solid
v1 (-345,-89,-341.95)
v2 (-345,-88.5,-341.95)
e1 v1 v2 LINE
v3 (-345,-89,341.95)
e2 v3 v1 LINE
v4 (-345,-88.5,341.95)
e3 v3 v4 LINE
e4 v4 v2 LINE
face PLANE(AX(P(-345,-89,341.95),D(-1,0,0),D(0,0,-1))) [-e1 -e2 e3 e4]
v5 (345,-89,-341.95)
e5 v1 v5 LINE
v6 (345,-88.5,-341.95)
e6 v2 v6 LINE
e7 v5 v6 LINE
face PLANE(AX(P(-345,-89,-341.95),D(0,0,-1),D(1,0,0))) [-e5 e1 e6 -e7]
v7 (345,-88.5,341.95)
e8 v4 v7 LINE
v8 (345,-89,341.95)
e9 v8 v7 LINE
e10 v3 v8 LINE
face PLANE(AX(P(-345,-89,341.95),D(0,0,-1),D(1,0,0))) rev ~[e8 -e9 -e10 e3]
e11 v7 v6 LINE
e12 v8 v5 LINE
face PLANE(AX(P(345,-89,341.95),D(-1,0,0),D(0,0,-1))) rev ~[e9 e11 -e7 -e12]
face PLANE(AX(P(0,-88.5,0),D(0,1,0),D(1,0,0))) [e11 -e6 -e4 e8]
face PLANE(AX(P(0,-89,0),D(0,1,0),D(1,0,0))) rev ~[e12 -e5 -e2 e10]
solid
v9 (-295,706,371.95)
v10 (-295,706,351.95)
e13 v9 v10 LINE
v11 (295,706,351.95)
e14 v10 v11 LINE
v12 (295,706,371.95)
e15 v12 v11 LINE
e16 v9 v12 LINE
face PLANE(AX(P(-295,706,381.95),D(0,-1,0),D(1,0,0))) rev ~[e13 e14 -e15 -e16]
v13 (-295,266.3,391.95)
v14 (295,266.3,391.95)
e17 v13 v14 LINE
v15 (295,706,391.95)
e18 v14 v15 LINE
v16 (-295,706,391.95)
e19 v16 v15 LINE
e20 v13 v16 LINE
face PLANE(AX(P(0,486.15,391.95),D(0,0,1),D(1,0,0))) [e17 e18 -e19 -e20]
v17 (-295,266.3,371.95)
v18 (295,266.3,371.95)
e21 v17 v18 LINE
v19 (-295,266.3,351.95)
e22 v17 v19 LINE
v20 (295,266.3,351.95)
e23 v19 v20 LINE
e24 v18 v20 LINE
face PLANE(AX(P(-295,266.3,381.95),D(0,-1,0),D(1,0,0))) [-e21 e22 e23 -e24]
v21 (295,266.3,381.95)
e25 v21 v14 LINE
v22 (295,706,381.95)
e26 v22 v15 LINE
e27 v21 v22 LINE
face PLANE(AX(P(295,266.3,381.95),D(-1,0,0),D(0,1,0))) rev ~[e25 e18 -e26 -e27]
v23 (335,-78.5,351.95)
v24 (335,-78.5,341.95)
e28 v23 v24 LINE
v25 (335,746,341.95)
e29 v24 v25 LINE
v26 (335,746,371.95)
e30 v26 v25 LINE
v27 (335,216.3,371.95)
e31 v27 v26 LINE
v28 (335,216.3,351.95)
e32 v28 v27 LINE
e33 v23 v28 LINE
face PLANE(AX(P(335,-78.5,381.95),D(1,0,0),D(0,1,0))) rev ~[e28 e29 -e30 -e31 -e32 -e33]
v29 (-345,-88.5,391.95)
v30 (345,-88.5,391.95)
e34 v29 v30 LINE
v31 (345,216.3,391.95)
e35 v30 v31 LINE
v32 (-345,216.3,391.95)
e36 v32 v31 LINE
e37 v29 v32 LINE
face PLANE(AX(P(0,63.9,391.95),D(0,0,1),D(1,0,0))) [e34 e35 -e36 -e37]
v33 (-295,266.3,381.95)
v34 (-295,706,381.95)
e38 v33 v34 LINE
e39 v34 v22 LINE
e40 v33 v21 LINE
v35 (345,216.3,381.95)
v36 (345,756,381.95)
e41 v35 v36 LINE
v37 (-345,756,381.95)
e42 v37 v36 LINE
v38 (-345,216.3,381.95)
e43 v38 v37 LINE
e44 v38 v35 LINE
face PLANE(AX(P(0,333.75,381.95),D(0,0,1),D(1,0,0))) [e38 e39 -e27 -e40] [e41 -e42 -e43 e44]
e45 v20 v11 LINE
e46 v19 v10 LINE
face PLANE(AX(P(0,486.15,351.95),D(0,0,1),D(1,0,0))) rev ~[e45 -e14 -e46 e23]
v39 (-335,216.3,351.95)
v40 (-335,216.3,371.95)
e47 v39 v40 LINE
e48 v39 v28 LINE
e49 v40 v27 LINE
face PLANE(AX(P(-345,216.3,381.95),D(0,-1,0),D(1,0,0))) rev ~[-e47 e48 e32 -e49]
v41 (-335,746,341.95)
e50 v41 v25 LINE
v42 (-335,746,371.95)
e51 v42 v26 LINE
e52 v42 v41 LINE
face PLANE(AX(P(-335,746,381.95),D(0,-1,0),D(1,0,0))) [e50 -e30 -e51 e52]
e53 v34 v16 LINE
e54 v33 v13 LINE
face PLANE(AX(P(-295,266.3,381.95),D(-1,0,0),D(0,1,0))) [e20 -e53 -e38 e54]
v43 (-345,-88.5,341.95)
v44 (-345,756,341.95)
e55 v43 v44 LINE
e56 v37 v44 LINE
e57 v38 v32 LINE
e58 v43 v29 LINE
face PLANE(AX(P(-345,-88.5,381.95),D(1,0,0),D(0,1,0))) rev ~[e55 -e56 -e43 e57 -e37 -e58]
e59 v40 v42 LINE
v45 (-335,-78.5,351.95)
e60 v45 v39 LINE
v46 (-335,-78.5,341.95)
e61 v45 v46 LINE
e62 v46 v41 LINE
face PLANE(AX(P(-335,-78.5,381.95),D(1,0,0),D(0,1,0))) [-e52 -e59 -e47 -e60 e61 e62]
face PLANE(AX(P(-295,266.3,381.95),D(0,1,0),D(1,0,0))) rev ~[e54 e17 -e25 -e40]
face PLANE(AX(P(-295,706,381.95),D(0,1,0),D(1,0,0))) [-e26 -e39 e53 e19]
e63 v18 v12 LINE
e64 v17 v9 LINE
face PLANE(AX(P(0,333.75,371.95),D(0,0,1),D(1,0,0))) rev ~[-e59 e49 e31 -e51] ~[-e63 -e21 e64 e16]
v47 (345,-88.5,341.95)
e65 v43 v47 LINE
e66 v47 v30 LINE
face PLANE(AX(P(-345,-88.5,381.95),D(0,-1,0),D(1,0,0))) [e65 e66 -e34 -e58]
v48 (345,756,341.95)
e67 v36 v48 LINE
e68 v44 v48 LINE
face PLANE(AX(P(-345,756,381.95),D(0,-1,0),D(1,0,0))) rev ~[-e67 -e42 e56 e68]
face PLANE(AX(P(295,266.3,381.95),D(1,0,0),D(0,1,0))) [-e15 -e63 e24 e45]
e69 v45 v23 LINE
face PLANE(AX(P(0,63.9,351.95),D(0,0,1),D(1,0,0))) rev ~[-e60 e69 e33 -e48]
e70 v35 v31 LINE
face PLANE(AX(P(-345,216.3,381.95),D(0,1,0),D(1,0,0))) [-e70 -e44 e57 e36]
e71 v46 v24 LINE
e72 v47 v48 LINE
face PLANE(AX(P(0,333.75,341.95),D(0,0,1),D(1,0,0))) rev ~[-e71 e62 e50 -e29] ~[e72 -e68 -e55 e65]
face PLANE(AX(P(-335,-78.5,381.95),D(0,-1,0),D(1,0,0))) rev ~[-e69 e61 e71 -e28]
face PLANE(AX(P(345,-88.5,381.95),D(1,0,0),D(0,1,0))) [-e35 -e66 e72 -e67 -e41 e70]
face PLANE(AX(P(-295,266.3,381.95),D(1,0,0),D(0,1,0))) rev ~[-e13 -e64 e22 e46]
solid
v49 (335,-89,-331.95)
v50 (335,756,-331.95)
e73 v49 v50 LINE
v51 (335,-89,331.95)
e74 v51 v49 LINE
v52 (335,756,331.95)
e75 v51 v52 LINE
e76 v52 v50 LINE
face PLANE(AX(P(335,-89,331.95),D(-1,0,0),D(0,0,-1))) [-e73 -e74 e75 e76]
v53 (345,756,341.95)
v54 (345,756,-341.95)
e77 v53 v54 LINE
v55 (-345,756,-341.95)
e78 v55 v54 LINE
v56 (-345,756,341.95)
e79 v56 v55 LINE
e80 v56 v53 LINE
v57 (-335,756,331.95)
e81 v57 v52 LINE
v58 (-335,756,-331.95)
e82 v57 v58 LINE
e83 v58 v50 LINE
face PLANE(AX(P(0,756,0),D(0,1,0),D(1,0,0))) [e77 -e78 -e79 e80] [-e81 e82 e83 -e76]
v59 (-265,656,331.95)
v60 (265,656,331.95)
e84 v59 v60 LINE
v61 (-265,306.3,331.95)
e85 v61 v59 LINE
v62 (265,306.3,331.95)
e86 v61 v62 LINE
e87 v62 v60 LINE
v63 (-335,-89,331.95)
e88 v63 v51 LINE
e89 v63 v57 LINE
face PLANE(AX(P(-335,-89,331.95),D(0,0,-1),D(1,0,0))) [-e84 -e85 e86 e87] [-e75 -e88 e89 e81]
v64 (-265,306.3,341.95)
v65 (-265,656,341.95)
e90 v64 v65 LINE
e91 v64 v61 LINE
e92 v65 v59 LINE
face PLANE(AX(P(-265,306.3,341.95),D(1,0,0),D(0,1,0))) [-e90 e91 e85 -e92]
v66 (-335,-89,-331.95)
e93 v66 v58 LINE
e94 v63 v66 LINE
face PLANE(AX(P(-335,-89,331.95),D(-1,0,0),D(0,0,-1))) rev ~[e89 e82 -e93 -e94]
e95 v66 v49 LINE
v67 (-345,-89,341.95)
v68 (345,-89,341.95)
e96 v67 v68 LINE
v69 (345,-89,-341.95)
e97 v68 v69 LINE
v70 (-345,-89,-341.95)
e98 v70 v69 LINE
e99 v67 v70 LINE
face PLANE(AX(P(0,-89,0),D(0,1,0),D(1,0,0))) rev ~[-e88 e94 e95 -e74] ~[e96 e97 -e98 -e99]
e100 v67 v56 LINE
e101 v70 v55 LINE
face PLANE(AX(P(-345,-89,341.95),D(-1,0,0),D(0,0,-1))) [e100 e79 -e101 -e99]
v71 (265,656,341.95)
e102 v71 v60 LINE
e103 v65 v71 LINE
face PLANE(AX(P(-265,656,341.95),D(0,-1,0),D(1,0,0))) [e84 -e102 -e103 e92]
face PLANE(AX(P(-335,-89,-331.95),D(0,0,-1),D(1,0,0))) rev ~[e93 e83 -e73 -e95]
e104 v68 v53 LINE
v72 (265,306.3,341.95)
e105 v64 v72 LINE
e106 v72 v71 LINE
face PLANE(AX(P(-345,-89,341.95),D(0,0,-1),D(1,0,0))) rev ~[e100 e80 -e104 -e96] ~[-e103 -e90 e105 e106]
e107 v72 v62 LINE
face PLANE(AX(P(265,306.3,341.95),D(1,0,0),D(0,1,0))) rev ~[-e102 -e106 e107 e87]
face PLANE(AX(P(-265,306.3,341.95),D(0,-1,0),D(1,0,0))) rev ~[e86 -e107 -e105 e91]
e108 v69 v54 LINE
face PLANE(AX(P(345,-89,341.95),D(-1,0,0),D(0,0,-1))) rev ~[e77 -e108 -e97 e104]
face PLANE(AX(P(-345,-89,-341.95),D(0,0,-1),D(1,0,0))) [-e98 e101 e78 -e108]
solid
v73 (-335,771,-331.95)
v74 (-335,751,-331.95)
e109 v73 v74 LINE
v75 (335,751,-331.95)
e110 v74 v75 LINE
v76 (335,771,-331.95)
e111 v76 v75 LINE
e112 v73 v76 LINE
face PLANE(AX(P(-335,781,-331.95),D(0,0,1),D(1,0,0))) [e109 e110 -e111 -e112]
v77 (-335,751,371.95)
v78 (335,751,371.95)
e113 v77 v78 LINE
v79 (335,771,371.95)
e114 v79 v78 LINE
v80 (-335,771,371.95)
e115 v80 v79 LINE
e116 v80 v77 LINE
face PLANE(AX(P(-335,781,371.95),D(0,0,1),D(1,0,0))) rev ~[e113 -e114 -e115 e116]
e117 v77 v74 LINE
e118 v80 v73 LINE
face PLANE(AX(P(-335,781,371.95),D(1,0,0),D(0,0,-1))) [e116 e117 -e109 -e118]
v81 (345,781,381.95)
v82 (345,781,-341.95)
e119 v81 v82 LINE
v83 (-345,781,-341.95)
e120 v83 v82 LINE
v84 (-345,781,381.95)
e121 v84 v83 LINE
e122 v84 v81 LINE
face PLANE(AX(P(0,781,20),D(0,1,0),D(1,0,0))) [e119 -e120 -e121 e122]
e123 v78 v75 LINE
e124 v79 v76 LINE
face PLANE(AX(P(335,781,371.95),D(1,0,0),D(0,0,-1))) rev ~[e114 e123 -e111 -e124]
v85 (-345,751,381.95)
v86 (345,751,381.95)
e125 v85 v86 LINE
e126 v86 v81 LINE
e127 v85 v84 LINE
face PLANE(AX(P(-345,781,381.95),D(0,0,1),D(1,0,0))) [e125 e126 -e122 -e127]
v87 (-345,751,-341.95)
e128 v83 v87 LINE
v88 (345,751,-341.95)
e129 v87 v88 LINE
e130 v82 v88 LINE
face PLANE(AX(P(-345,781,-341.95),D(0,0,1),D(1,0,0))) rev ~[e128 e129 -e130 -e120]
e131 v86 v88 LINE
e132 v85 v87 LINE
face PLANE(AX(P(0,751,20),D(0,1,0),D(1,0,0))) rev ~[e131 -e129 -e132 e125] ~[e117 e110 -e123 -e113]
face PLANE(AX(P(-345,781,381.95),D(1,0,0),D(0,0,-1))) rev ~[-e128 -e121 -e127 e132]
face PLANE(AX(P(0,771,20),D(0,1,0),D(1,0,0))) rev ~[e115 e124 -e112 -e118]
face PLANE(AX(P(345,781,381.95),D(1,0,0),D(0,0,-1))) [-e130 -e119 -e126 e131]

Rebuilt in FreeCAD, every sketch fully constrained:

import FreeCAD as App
import Part
import Sketcher

doc = App.newDocument("Part")
body = doc.addObject("PartDesign::Body", "Body")

sketch1 = body.newObject("Sketcher::SketchObject", "Sketch")
sketch1.AttachmentSupport = (doc.getObject("XZ_Plane"), [""])
sketch1.MapMode = "FlatFace"
sketch1.AttachmentOffset = App.Placement(App.Vector(0, 0, 89), App.Rotation())
sketch1.addGeometry([
    Part.LineSegment(App.Vector(-345, -341.95, 0), App.Vector(-345, 341.95, 0)),
    Part.LineSegment(App.Vector(-345, 341.95, 0), App.Vector(345, 341.95, 0)),
    Part.LineSegment(App.Vector(345, 341.95, 0), App.Vector(345, -341.95, 0)),
    Part.LineSegment(App.Vector(345, -341.95, 0), App.Vector(-345, -341.95, 0)),
], False)
sketch1.addConstraint([
    Sketcher.Constraint("Coincident", 0, 2, 1, 1),
    Sketcher.Constraint("Coincident", 1, 2, 2, 1),
    Sketcher.Constraint("Coincident", 2, 2, 3, 1),
    Sketcher.Constraint("Coincident", 3, 2, 0, 1),
    Sketcher.Constraint("Vertical", 0),
    Sketcher.Constraint("Horizontal", 1),
    Sketcher.Constraint("Vertical", 2),
    Sketcher.Constraint("Horizontal", 3),
    Sketcher.Constraint("Symmetric", 0, 2, 2, 2, -1, 1),
    Sketcher.Constraint("DistanceX", 1, 1, 1, 2, 690.0),
    Sketcher.Constraint("DistanceY", 0, 1, 0, 2, 683.9),
])
pad1 = body.newObject("PartDesign::Pad", "Pad")
pad1.Profile = sketch1
pad1.Length = 0.5
pad1.Reversed = True
body2 = doc.addObject("PartDesign::Body", "Body001")

sketch2 = body2.newObject("Sketcher::SketchObject", "Sketch001")
sketch2.AttachmentSupport = (doc.getObject("XZ_Plane001"), [""])
sketch2.MapMode = "FlatFace"
sketch2.AttachmentOffset = App.Placement(App.Vector(0, 0, 89), App.Rotation())
sketch2.addGeometry([
    Part.LineSegment(App.Vector(-345, -341.95, 0), App.Vector(-345, 341.95, 0)),
    Part.LineSegment(App.Vector(-345, 341.95, 0), App.Vector(345, 341.95, 0)),
    Part.LineSegment(App.Vector(345, 341.95, 0), App.Vector(345, -341.95, 0)),
    Part.LineSegment(App.Vector(345, -341.95, 0), App.Vector(-345, -341.95, 0)),
    Part.LineSegment(App.Vector(335, 331.95, 0), App.Vector(-335, 331.95, 0)),
    Part.LineSegment(App.Vector(-335, 331.95, 0), App.Vector(-335, -331.95, 0)),
    Part.LineSegment(App.Vector(-335, -331.95, 0), App.Vector(335, -331.95, 0)),
    Part.LineSegment(App.Vector(335, -331.95, 0), App.Vector(335, 331.95, 0)),
], False)
sketch2.addConstraint([
    Sketcher.Constraint("Coincident", 0, 2, 1, 1),
    Sketcher.Constraint("Coincident", 1, 2, 2, 1),
    Sketcher.Constraint("Coincident", 2, 2, 3, 1),
    Sketcher.Constraint("Coincident", 3, 2, 0, 1),
    Sketcher.Constraint("Coincident", 4, 2, 5, 1),
    Sketcher.Constraint("Coincident", 5, 2, 6, 1),
    Sketcher.Constraint("Coincident", 6, 2, 7, 1),
    Sketcher.Constraint("Coincident", 7, 2, 4, 1),
    Sketcher.Constraint("Vertical", 0),
    Sketcher.Constraint("Horizontal", 1),
    Sketcher.Constraint("Vertical", 2),
    Sketcher.Constraint("Horizontal", 3),
    Sketcher.Constraint("Horizontal", 4),
    Sketcher.Constraint("Vertical", 5),
    Sketcher.Constraint("Horizontal", 6),
    Sketcher.Constraint("Vertical", 7),
    Sketcher.Constraint("Symmetric", 0, 2, 2, 2, -1, 1),
    Sketcher.Constraint("Symmetric", 4, 2, 6, 2, -1, 1),
    Sketcher.Constraint("DistanceX", 1, 1, 1, 2, 690.0),
    Sketcher.Constraint("DistanceX", 4, 2, 4, 1, 670.0),
    Sketcher.Constraint("DistanceY", 0, 1, 0, 2, 683.9),
    Sketcher.Constraint("DistanceY", 5, 2, 5, 1, 663.9),
])
pad2 = body2.newObject("PartDesign::Pad", "Pad001")
pad2.Profile = sketch2
pad2.Length = 845
pad2.Reversed = True

sketch3 = body2.newObject("Sketcher::SketchObject", "Sketch002")
sketch3.AttachmentSupport = (doc.getObject("XY_Plane001"), [""])
sketch3.MapMode = "FlatFace"
sketch3.AttachmentOffset = App.Placement(App.Vector(0, 0, 341.95), App.Rotation())
sketch3.addGeometry([
    Part.LineSegment(App.Vector(-265, 656, 0), App.Vector(-265, 306.3, 0)),
    Part.LineSegment(App.Vector(-265, 306.3, 0), App.Vector(265, 306.3, 0)),
    Part.LineSegment(App.Vector(265, 306.3, 0), App.Vector(265, 656, 0)),
    Part.LineSegment(App.Vector(265, 656, 0), App.Vector(-265, 656, 0)),
], False)
sketch3.addConstraint([
    Sketcher.Constraint("Coincident", 0, 2, 1, 1),
    Sketcher.Constraint("Coincident", 1, 2, 2, 1),
    Sketcher.Constraint("Coincident", 2, 2, 3, 1),
    Sketcher.Constraint("Coincident", 3, 2, 0, 1),
    Sketcher.Constraint("Vertical", 0),
    Sketcher.Constraint("Horizontal", 1),
    Sketcher.Constraint("Vertical", 2),
    Sketcher.Constraint("Horizontal", 3),
    Sketcher.Constraint("DistanceX", 1, 1, 1, 2, 530.0),
    Sketcher.Constraint("DistanceY", 0, 2, 0, 1, 349.7),
    Sketcher.Constraint("DistanceX", 0, 2, -1, 1, 265.0),
    Sketcher.Constraint("DistanceY", -1, 1, 2, 2, 656.0),
])
pocket1 = body2.newObject("PartDesign::Pocket", "Pocket")
pocket1.Profile = sketch3
pocket1.Length = 10
body3 = doc.addObject("PartDesign::Body", "Body002")

sketch4 = body3.newObject("Sketcher::SketchObject", "Sketch003")
sketch4.AttachmentSupport = (doc.getObject("XZ_Plane002"), [""])
sketch4.MapMode = "FlatFace"
sketch4.AttachmentOffset = App.Placement(App.Vector(0, 0, -781), App.Rotation())
sketch4.addGeometry([
    Part.LineSegment(App.Vector(-345, -341.95, 0), App.Vector(-345, 381.95, 0)),
    Part.LineSegment(App.Vector(-345, 381.95, 0), App.Vector(345, 381.95, 0)),
    Part.LineSegment(App.Vector(345, 381.95, 0), App.Vector(345, -341.95, 0)),
    Part.LineSegment(App.Vector(345, -341.95, 0), App.Vector(-345, -341.95, 0)),
], False)
sketch4.addConstraint([
    Sketcher.Constraint("Coincident", 0, 2, 1, 1),
    Sketcher.Constraint("Coincident", 1, 2, 2, 1),
    Sketcher.Constraint("Coincident", 2, 2, 3, 1),
    Sketcher.Constraint("Coincident", 3, 2, 0, 1),
    Sketcher.Constraint("Vertical", 0),
    Sketcher.Constraint("Horizontal", 1),
    Sketcher.Constraint("Vertical", 2),
    Sketcher.Constraint("Horizontal", 3),
    Sketcher.Constraint("DistanceX", 1, 1, 1, 2, 690.0),
    Sketcher.Constraint("DistanceY", 0, 1, 0, 2, 723.9),
    Sketcher.Constraint("DistanceX", 0, 2, -1, 1, 345.0),
    Sketcher.Constraint("DistanceY", -1, 1, 0, 2, 381.95),
])
pad3 = body3.newObject("PartDesign::Pad", "Pad002")
pad3.Profile = sketch4
pad3.Length = 10

sketch5 = body3.newObject("Sketcher::SketchObject", "Sketch004")
sketch5.AttachmentSupport = (doc.getObject("XZ_Plane002"), [""])
sketch5.MapMode = "FlatFace"
sketch5.AttachmentOffset = App.Placement(App.Vector(0, 0, -781), App.Rotation())
sketch5.addGeometry([
    Part.LineSegment(App.Vector(-345, -341.95, 0), App.Vector(-345, 381.95, 0)),
    Part.LineSegment(App.Vector(-345, 381.95, 0), App.Vector(345, 381.95, 0)),
    Part.LineSegment(App.Vector(345, 381.95, 0), App.Vector(345, -341.95, 0)),
    Part.LineSegment(App.Vector(345, -341.95, 0), App.Vector(-345, -341.95, 0)),
    Part.LineSegment(App.Vector(335, 371.95, 0), App.Vector(-335, 371.95, 0)),
    Part.LineSegment(App.Vector(-335, 371.95, 0), App.Vector(-335, -331.95, 0)),
    Part.LineSegment(App.Vector(-335, -331.95, 0), App.Vector(335, -331.95, 0)),
    Part.LineSegment(App.Vector(335, -331.95, 0), App.Vector(335, 371.95, 0)),
], False)
sketch5.addConstraint([
    Sketcher.Constraint("Coincident", 0, 2, 1, 1),
    Sketcher.Constraint("Coincident", 1, 2, 2, 1),
    Sketcher.Constraint("Coincident", 2, 2, 3, 1),
    Sketcher.Constraint("Coincident", 3, 2, 0, 1),
    Sketcher.Constraint("Coincident", 4, 2, 5, 1),
    Sketcher.Constraint("Coincident", 5, 2, 6, 1),
    Sketcher.Constraint("Coincident", 6, 2, 7, 1),
    Sketcher.Constraint("Coincident", 7, 2, 4, 1),
    Sketcher.Constraint("Vertical", 0),
    Sketcher.Constraint("Horizontal", 1),
    Sketcher.Constraint("Vertical", 2),
    Sketcher.Constraint("Horizontal", 3),
    Sketcher.Constraint("Horizontal", 4),
    Sketcher.Constraint("Vertical", 5),
    Sketcher.Constraint("Horizontal", 6),
    Sketcher.Constraint("Vertical", 7),
    Sketcher.Constraint("DistanceX", 1, 1, 1, 2, 690.0),
    Sketcher.Constraint("DistanceX", 4, 2, 4, 1, 670.0),
    Sketcher.Constraint("DistanceY", 0, 1, 0, 2, 723.9),
    Sketcher.Constraint("DistanceY", 5, 2, 5, 1, 703.9),
    Sketcher.Constraint("DistanceX", 0, 2, -1, 1, 345.0),
    Sketcher.Constraint("DistanceX", 4, 2, -1, 1, 335.0),
    Sketcher.Constraint("DistanceY", 4, 2, 0, 2, 10.0),
    Sketcher.Constraint("DistanceY", -1, 1, 0, 2, 381.95),
])
pad4 = body3.newObject("PartDesign::Pad", "Pad003")
pad4.Profile = sketch5
pad4.Length = 30
body4 = doc.addObject("PartDesign::Body", "Body003")

sketch6 = body4.newObject("Sketcher::SketchObject", "Sketch005")
sketch6.AttachmentSupport = (doc.getObject("XY_Plane003"), [""])
sketch6.MapMode = "FlatFace"
sketch6.AttachmentOffset = App.Placement(App.Vector(0, 0, 381.95), App.Rotation())
sketch6.addGeometry([
    Part.LineSegment(App.Vector(-345, 756, 0), App.Vector(-345, -88.5, 0)),
    Part.LineSegment(App.Vector(-345, -88.5, 0), App.Vector(345, -88.5, 0)),
    Part.LineSegment(App.Vector(345, -88.5, 0), App.Vector(345, 756, 0)),
    Part.LineSegment(App.Vector(345, 756, 0), App.Vector(-345, 756, 0)),
], False)
sketch6.addConstraint([
    Sketcher.Constraint("Coincident", 0, 2, 1, 1),
    Sketcher.Constraint("Coincident", 1, 2, 2, 1),
    Sketcher.Constraint("Coincident", 2, 2, 3, 1),
    Sketcher.Constraint("Coincident", 3, 2, 0, 1),
    Sketcher.Constraint("Vertical", 0),
    Sketcher.Constraint("Horizontal", 1),
    Sketcher.Constraint("Vertical", 2),
    Sketcher.Constraint("Horizontal", 3),
    Sketcher.Constraint("DistanceX", 1, 1, 1, 2, 690.0),
    Sketcher.Constraint("DistanceY", 0, 2, 0, 1, 844.5),
    Sketcher.Constraint("DistanceX", 0, 2, -1, 1, 345.0),
    Sketcher.Constraint("DistanceY", -1, 1, 2, 2, 756.0),
])
pad5 = body4.newObject("PartDesign::Pad", "Pad004")
pad5.Profile = sketch6
pad5.Length = 10
pad5.Reversed = True

sketch7 = body4.newObject("Sketcher::SketchObject", "Sketch006")
sketch7.AttachmentSupport = (doc.getObject("XY_Plane003"), [""])
sketch7.MapMode = "FlatFace"
sketch7.AttachmentOffset = App.Placement(App.Vector(0, 0, 381.95), App.Rotation())
sketch7.addGeometry([
    Part.LineSegment(App.Vector(-345, 216.3, 0), App.Vector(-345, -88.5, 0)),
    Part.LineSegment(App.Vector(-345, -88.5, 0), App.Vector(345, -88.5, 0)),
    Part.LineSegment(App.Vector(345, -88.5, 0), App.Vector(345, 216.3, 0)),
    Part.LineSegment(App.Vector(345, 216.3, 0), App.Vector(-345, 216.3, 0)),
    Part.LineSegment(App.Vector(-295, 706, 0), App.Vector(-295, 266.3, 0)),
    Part.LineSegment(App.Vector(-295, 266.3, 0), App.Vector(295, 266.3, 0)),
    Part.LineSegment(App.Vector(295, 266.3, 0), App.Vector(295, 706, 0)),
    Part.LineSegment(App.Vector(295, 706, 0), App.Vector(-295, 706, 0)),
], False)
sketch7.addConstraint([
    Sketcher.Constraint("Coincident", 0, 2, 1, 1),
    Sketcher.Constraint("Coincident", 1, 2, 2, 1),
    Sketcher.Constraint("Coincident", 2, 2, 3, 1),
    Sketcher.Constraint("Coincident", 3, 2, 0, 1),
    Sketcher.Constraint("Coincident", 4, 2, 5, 1),
    Sketcher.Constraint("Coincident", 5, 2, 6, 1),
    Sketcher.Constraint("Coincident", 6, 2, 7, 1),
    Sketcher.Constraint("Coincident", 7, 2, 4, 1),
    Sketcher.Constraint("Vertical", 0),
    Sketcher.Constraint("Horizontal", 1),
    Sketcher.Constraint("Vertical", 2),
    Sketcher.Constraint("Horizontal", 3),
    Sketcher.Constraint("Vertical", 4),
    Sketcher.Constraint("Horizontal", 5),
    Sketcher.Constraint("Vertical", 6),
    Sketcher.Constraint("Horizontal", 7),
    Sketcher.Constraint("DistanceX", 1, 1, 1, 2, 690.0),
    Sketcher.Constraint("DistanceX", 5, 1, 5, 2, 590.0),
    Sketcher.Constraint("DistanceY", 0, 2, 0, 1, 304.8),
    Sketcher.Constraint("DistanceY", 4, 2, 4, 1, 439.7),
    Sketcher.Constraint("DistanceX", 0, 2, -1, 1, 345.0),
    Sketcher.Constraint("DistanceX", 4, 2, -1, 1, 295.0),
    Sketcher.Constraint("DistanceY", -1, 1, 6, 2, 706.0),
    Sketcher.Constraint("DistanceY", 3, 2, 4, 2, 50.0),
])
pad6 = body4.newObject("PartDesign::Pad", "Pad005")
pad6.Profile = sketch7
pad6.Type = "TwoLengths"
pad6.Length = 10
pad6.Length2 = 30

sketch8 = body4.newObject("Sketcher::SketchObject", "Sketch007")
sketch8.AttachmentSupport = (doc.getObject("XY_Plane003"), [""])
sketch8.MapMode = "FlatFace"
sketch8.AttachmentOffset = App.Placement(App.Vector(0, 0, 381.95), App.Rotation())
sketch8.addGeometry([
    Part.LineSegment(App.Vector(-345, 756, 0), App.Vector(-345, -88.5, 0)),
    Part.LineSegment(App.Vector(-345, -88.5, 0), App.Vector(345, -88.5, 0)),
    Part.LineSegment(App.Vector(345, -88.5, 0), App.Vector(345, 756, 0)),
    Part.LineSegment(App.Vector(345, 756, 0), App.Vector(-345, 756, 0)),
    Part.LineSegment(App.Vector(335, -78.5, 0), App.Vector(-335, -78.5, 0)),
    Part.LineSegment(App.Vector(-335, -78.5, 0), App.Vector(-335, 746, 0)),
    Part.LineSegment(App.Vector(-335, 746, 0), App.Vector(335, 746, 0)),
    Part.LineSegment(App.Vector(335, 746, 0), App.Vector(335, -78.5, 0)),
], False)
sketch8.addConstraint([
    Sketcher.Constraint("Coincident", 0, 2, 1, 1),
    Sketcher.Constraint("Coincident", 1, 2, 2, 1),
    Sketcher.Constraint("Coincident", 2, 2, 3, 1),
    Sketcher.Constraint("Coincident", 3, 2, 0, 1),
    Sketcher.Constraint("Coincident", 4, 2, 5, 1),
    Sketcher.Constraint("Coincident", 5, 2, 6, 1),
    Sketcher.Constraint("Coincident", 6, 2, 7, 1),
    Sketcher.Constraint("Coincident", 7, 2, 4, 1),
    Sketcher.Constraint("Vertical", 0),
    Sketcher.Constraint("Horizontal", 1),
    Sketcher.Constraint("Vertical", 2),
    Sketcher.Constraint("Horizontal", 3),
    Sketcher.Constraint("Horizontal", 4),
    Sketcher.Constraint("Vertical", 5),
    Sketcher.Constraint("Horizontal", 6),
    Sketcher.Constraint("Vertical", 7),
    Sketcher.Constraint("DistanceX", 1, 1, 1, 2, 690.0),
    Sketcher.Constraint("DistanceX", 4, 2, 4, 1, 670.0),
    Sketcher.Constraint("DistanceY", 0, 2, 0, 1, 844.5),
    Sketcher.Constraint("DistanceY", 5, 1, 5, 2, 824.5),
    Sketcher.Constraint("DistanceX", 0, 2, -1, 1, 345.0),
    Sketcher.Constraint("DistanceY", -1, 1, 2, 2, 756.0),
    Sketcher.Constraint("DistanceX", 4, 2, -1, 1, 335.0),
    Sketcher.Constraint("DistanceY", -1, 1, 5, 2, 746.0),
])
pad7 = body4.newObject("PartDesign::Pad", "Pad006")
pad7.Profile = sketch8
pad7.Length = 40
pad7.Reversed = True

doc.recompute()
